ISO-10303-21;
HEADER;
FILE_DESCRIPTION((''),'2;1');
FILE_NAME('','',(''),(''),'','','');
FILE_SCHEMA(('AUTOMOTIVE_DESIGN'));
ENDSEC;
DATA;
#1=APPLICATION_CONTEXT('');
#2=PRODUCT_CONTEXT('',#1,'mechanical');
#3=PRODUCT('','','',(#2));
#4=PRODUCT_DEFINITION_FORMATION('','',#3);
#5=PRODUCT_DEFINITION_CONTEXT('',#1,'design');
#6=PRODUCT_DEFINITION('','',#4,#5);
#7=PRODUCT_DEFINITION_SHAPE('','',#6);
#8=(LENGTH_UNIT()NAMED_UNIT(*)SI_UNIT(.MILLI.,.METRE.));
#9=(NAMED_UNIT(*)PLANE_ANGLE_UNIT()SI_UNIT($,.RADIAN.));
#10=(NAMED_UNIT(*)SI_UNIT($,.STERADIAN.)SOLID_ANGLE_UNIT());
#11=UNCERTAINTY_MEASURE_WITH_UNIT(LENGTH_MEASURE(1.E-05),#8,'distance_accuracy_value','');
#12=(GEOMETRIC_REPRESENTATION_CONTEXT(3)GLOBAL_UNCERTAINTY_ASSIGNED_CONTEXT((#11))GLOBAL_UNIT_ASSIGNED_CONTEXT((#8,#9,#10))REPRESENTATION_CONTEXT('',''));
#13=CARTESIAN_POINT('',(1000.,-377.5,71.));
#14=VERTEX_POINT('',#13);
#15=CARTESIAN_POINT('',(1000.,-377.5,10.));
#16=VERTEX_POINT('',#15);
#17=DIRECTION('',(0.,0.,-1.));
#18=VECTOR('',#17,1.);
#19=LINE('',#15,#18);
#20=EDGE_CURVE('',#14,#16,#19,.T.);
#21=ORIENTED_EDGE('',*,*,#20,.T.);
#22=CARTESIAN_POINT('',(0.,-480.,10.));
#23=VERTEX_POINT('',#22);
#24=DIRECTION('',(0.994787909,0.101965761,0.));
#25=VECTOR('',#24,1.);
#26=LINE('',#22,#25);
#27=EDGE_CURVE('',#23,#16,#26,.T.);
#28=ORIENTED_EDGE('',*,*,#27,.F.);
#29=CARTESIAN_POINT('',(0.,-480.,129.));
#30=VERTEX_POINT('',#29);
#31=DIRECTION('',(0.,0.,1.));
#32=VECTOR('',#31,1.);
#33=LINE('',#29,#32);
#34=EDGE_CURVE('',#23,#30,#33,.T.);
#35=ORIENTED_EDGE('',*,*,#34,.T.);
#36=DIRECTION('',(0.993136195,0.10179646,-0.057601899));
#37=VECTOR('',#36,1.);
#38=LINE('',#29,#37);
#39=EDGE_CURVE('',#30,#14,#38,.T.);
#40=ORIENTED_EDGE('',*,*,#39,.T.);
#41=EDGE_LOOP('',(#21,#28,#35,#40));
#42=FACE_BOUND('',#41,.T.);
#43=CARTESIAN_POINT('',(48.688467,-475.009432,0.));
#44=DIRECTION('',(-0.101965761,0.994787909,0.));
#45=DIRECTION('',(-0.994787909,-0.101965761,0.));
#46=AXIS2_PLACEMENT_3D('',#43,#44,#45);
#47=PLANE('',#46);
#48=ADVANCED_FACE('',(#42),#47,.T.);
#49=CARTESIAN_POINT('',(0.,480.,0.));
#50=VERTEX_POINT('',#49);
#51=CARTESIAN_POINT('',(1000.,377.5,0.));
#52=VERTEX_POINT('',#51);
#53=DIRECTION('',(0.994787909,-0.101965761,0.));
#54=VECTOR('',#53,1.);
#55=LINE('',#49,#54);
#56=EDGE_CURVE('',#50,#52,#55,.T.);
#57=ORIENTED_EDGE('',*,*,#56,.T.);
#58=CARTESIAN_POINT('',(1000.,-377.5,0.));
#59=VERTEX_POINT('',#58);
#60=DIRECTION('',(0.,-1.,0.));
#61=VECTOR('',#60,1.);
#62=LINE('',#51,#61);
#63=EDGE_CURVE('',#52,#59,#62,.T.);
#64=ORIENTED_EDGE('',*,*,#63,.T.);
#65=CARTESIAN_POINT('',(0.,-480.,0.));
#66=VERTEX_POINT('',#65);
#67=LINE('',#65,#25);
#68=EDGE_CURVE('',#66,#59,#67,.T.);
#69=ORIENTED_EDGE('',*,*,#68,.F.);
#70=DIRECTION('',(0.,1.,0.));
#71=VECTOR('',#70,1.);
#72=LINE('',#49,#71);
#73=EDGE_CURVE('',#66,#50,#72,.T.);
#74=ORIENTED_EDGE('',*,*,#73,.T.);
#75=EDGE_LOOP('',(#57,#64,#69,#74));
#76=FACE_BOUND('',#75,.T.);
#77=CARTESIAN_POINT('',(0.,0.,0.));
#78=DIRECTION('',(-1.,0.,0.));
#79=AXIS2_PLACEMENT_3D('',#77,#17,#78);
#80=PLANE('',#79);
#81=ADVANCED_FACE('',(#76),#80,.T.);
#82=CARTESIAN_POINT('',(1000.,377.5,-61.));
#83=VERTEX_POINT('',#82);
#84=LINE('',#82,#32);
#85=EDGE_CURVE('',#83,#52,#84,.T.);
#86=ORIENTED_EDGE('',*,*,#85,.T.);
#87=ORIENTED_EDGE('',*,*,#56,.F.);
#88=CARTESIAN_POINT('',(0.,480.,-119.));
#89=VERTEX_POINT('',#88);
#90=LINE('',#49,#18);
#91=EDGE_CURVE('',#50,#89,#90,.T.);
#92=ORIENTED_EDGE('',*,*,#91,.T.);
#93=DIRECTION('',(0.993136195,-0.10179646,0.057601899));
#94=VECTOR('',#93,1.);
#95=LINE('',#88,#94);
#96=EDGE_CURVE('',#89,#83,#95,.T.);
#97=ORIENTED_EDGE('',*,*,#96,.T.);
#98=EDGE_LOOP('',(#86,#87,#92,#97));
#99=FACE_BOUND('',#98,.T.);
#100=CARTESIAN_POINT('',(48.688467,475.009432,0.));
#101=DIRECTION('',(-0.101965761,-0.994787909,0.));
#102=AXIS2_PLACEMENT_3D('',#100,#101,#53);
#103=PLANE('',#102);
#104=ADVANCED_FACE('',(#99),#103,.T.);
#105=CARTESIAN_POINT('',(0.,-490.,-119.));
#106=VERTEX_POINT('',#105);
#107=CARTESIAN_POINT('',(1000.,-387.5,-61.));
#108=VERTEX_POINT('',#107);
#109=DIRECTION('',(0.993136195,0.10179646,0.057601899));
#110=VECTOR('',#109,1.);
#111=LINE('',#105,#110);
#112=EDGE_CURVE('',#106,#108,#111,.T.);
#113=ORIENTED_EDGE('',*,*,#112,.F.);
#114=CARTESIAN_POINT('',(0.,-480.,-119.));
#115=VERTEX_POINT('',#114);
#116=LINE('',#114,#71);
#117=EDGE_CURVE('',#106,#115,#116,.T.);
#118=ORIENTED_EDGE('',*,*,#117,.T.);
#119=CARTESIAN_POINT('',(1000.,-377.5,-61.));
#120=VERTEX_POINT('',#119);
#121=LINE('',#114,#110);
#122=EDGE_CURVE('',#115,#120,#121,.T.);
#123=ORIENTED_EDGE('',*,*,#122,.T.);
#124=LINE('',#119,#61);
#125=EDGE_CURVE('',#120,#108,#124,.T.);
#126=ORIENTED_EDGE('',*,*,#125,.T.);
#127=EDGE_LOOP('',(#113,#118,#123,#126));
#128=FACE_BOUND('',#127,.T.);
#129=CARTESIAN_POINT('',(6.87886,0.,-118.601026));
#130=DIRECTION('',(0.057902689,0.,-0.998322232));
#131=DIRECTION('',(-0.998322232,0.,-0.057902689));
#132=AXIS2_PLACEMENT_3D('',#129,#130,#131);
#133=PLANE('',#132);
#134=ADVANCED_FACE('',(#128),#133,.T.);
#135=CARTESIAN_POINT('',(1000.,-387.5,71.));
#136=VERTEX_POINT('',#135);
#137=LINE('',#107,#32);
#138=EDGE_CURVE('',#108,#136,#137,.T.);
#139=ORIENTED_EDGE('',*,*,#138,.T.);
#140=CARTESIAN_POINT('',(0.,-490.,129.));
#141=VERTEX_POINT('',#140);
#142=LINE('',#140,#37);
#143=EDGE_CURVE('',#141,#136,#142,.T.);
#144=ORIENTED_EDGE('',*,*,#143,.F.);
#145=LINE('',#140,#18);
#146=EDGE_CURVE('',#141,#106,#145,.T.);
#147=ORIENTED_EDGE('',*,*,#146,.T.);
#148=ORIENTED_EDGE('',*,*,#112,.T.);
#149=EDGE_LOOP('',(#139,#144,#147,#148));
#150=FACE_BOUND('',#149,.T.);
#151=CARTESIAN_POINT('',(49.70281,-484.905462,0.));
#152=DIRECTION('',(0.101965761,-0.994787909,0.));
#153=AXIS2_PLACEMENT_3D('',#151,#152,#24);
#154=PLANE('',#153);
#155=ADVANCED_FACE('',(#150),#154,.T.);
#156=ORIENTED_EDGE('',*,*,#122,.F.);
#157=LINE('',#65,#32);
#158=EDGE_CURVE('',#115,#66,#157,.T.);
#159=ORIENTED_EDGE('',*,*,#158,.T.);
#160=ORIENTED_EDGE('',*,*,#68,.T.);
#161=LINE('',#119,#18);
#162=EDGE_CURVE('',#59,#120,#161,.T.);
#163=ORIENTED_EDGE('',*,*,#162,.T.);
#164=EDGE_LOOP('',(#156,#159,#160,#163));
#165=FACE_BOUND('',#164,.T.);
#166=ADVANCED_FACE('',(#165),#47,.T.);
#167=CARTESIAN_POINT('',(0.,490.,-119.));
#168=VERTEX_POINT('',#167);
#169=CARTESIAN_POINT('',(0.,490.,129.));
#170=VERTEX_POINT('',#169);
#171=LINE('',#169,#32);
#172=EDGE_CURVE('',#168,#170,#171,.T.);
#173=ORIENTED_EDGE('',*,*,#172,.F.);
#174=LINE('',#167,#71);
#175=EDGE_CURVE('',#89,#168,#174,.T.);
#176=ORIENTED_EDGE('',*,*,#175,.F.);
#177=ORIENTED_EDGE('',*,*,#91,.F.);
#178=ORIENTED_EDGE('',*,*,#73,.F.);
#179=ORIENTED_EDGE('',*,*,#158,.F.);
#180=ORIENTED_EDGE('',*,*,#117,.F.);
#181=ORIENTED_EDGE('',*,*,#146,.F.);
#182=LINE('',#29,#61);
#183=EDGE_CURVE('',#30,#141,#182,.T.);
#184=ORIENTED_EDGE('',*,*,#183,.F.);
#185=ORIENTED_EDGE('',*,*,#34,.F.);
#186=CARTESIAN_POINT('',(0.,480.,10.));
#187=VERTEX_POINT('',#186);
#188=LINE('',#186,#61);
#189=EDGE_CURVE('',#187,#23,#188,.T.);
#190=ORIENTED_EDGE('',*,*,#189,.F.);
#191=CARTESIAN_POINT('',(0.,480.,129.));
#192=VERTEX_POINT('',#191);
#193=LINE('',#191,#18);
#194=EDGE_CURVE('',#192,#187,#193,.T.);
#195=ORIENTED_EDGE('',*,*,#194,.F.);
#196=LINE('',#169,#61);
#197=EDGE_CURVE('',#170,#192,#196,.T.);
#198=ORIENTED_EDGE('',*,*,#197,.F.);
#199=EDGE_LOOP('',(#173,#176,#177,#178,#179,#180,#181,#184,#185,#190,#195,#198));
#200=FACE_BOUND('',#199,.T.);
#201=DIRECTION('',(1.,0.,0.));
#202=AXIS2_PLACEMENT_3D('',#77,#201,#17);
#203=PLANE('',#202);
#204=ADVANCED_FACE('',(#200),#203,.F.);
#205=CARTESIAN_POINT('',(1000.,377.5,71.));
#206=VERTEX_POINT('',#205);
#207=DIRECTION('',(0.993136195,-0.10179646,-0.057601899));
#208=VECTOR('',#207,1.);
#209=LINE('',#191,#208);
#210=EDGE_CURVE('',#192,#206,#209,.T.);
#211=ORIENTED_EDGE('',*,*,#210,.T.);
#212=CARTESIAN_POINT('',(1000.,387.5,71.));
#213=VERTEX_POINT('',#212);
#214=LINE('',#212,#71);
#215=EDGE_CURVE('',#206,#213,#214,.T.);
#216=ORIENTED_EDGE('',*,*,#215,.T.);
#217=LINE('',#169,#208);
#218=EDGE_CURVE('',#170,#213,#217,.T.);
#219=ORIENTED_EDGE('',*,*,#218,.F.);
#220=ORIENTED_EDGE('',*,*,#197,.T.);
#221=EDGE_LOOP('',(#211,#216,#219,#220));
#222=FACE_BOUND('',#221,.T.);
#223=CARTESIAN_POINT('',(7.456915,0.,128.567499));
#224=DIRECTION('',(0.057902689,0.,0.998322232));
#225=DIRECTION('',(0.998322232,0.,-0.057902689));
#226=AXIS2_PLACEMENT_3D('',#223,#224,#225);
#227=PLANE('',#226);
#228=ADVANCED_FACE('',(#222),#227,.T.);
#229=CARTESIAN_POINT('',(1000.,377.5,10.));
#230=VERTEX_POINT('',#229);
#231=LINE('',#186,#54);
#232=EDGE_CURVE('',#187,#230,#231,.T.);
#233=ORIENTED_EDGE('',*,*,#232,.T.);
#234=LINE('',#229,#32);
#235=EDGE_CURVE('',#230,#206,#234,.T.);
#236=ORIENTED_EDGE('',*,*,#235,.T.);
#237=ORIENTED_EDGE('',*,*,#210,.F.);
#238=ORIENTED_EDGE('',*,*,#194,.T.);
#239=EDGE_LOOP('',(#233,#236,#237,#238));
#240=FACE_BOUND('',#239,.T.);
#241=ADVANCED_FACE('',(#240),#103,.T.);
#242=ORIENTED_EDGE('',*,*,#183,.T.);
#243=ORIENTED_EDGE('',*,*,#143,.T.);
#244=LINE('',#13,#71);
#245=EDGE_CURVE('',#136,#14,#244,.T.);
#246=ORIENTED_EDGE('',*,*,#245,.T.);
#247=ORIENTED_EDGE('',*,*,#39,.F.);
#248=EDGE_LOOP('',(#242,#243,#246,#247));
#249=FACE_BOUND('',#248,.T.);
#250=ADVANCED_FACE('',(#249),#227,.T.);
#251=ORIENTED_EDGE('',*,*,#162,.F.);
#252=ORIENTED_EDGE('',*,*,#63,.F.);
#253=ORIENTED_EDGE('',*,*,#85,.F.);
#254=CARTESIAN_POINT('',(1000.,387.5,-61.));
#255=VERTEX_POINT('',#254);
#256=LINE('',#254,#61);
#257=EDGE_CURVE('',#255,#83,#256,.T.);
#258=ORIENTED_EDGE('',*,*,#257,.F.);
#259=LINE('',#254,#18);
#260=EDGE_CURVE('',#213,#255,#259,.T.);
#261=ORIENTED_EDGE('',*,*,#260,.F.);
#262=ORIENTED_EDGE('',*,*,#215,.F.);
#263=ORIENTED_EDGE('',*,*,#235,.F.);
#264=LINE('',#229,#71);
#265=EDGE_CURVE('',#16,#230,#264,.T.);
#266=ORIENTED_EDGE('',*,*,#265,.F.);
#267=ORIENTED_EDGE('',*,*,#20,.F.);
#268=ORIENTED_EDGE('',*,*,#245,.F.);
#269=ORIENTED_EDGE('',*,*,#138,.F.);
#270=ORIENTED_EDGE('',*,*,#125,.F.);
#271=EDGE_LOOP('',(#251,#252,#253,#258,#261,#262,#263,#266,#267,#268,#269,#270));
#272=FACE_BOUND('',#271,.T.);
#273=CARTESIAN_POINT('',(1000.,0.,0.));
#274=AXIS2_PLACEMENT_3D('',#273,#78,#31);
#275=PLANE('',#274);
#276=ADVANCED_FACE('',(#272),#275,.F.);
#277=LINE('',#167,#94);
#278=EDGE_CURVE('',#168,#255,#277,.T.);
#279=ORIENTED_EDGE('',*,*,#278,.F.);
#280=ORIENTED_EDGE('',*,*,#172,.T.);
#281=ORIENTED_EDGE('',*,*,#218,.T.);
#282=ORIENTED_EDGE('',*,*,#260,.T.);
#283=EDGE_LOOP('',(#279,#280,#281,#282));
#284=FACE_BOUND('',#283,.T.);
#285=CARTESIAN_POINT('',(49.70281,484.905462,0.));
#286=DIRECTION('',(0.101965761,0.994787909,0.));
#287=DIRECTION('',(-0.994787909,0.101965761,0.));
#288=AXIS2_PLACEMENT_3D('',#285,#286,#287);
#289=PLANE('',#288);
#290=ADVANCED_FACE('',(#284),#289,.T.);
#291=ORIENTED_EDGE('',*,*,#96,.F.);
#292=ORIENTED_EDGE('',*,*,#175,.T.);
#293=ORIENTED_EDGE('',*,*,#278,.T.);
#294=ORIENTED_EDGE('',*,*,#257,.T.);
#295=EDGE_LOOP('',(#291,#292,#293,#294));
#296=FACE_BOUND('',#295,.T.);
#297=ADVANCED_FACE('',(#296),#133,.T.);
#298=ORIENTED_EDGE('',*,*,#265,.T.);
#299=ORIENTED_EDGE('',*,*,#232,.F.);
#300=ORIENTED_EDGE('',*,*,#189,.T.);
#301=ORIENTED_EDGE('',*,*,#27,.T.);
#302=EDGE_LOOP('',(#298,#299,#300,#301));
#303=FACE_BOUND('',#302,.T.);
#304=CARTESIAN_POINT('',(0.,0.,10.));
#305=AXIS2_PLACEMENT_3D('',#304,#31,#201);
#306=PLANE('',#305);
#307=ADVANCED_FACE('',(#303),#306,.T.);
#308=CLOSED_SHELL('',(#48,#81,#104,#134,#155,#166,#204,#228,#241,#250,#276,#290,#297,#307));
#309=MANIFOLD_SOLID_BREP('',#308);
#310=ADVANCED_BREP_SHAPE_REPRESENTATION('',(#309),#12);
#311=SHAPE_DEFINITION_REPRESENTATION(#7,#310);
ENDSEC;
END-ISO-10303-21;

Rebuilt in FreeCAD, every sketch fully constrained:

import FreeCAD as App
import Part
import Sketcher
Q = App.Units.Quantity

doc = App.newDocument("Part")
params = doc.addObject("Spreadsheet::Sheet", "Params")
for row, (alias, value) in enumerate([
    ("sketch1_width", "10 mm"),
    ("sketch1_width2", "960 mm"),
    ("sketch1_height", "248 mm"),
    ("sketch1_height2", "119 mm"),
    ("sketch2_width", "10 mm"),
    ("sketch2_width2", "755 mm"),
    ("sketch2_height", "132 mm"),
    ("sketch2_height2", "61 mm"),
], start=1):
    params.set(f"A{row}", alias)
    params.set(f"B{row}", "=" + value)
    params.setAlias(f"B{row}", alias)

body = doc.addObject("PartDesign::Body", "Body")

sketch1 = body.newObject("Sketcher::SketchObject", "Sketch")
sketch1.AttachmentSupport = (doc.getObject("YZ_Plane"), [""])
sketch1.MapMode = "FlatFace"
sketch1.addGeometry(Part.LineSegment(App.Vector(490, -119, 0), App.Vector(490, 129, 0)), False)
sketch1.addGeometry(Part.LineSegment(App.Vector(490, 129, 0), App.Vector(480, 129, 0)), False)
sketch1.addGeometry(Part.LineSegment(App.Vector(480, 129, 0), App.Vector(480, 10, 0)), False)
sketch1.addGeometry(Part.LineSegment(App.Vector(480, 10, 0), App.Vector(-480, 10, 0)), False)
sketch1.addGeometry(Part.LineSegment(App.Vector(-480, 10, 0), App.Vector(-480, 129, 0)), False)
sketch1.addGeometry(Part.LineSegment(App.Vector(-480, 129, 0), App.Vector(-490, 129, 0)), False)
sketch1.addGeometry(Part.LineSegment(App.Vector(-490, 129, 0), App.Vector(-490, -119, 0)), False)
sketch1.addGeometry(Part.LineSegment(App.Vector(-490, -119, 0), App.Vector(-480, -119, 0)), False)
sketch1.addGeometry(Part.LineSegment(App.Vector(-480, -119, 0), App.Vector(-480, 0, 0)), False)
sketch1.addGeometry(Part.LineSegment(App.Vector(-480, 0, 0), App.Vector(480, 0, 0)), False)
sketch1.addGeometry(Part.LineSegment(App.Vector(480, 0, 0), App.Vector(480, -119, 0)), False)
sketch1.addGeometry(Part.LineSegment(App.Vector(480, -119, 0), App.Vector(490, -119, 0)), False)
sketch1.addConstraint(Sketcher.Constraint("Coincident", 0, 2, 1, 1))
sketch1.addConstraint(Sketcher.Constraint("Coincident", 1, 2, 2, 1))
sketch1.addConstraint(Sketcher.Constraint("Coincident", 2, 2, 3, 1))
sketch1.addConstraint(Sketcher.Constraint("Coincident", 3, 2, 4, 1))
sketch1.addConstraint(Sketcher.Constraint("Coincident", 4, 2, 5, 1))
sketch1.addConstraint(Sketcher.Constraint("Coincident", 5, 2, 6, 1))
sketch1.addConstraint(Sketcher.Constraint("Coincident", 6, 2, 7, 1))
sketch1.addConstraint(Sketcher.Constraint("Coincident", 7, 2, 8, 1))
sketch1.addConstraint(Sketcher.Constraint("Coincident", 8, 2, 9, 1))
sketch1.addConstraint(Sketcher.Constraint("Coincident", 9, 2, 10, 1))
sketch1.addConstraint(Sketcher.Constraint("Coincident", 10, 2, 11, 1))
sketch1.addConstraint(Sketcher.Constraint("Coincident", 11, 2, 0, 1))
sketch1.addConstraint(Sketcher.Constraint("Vertical", 0))
sketch1.addConstraint(Sketcher.Constraint("Horizontal", 1))
sketch1.addConstraint(Sketcher.Constraint("Vertical", 2))
sketch1.addConstraint(Sketcher.Constraint("Horizontal", 3))
sketch1.addConstraint(Sketcher.Constraint("Vertical", 4))
sketch1.addConstraint(Sketcher.Constraint("Horizontal", 5))
sketch1.addConstraint(Sketcher.Constraint("Vertical", 6))
sketch1.addConstraint(Sketcher.Constraint("Horizontal", 7))
sketch1.addConstraint(Sketcher.Constraint("Vertical", 8))
sketch1.addConstraint(Sketcher.Constraint("Horizontal", 9))
sketch1.addConstraint(Sketcher.Constraint("Vertical", 10))
sketch1.addConstraint(Sketcher.Constraint("Horizontal", 11))
sketch1.addConstraint(Sketcher.Constraint("Symmetric", 8, 2, 9, 2, -1, 1))
sketch1.addConstraint(Sketcher.Constraint("Symmetric", 1, 2, 4, 2, -2))
sketch1.addConstraint(Sketcher.Constraint("Symmetric", 6, 2, 11, 2, -2))
sketch1.addConstraint(Sketcher.Constraint("Vertical", 4, 2, 7, 2))
sketch1.addConstraint(Sketcher.Constraint("Equal", 4, 8))
sketch1.addConstraint(Sketcher.Constraint("DistanceX", 1, 2, 1, 1, Q("10 mm")))
sketch1.addConstraint(Sketcher.Constraint("DistanceX", 3, 2, 3, 1, Q("960 mm")))
sketch1.addConstraint(Sketcher.Constraint("DistanceY", 0, 1, 0, 2, Q("248 mm")))
sketch1.addConstraint(Sketcher.Constraint("DistanceY", 2, 2, 2, 1, Q("119 mm")))
sketch1.setExpression("Constraints[29]", "Params.sketch1_width")
sketch1.setExpression("Constraints[30]", "Params.sketch1_width2")
sketch1.setExpression("Constraints[31]", "Params.sketch1_height")
sketch1.setExpression("Constraints[32]", "Params.sketch1_height2")

sketch2 = body.newObject("Sketcher::SketchObject", "Sketch001")
sketch2.AttachmentSupport = (doc.getObject("YZ_Plane"), [""])
sketch2.MapMode = "FlatFace"
sketch2.AttachmentOffset = App.Placement(App.Vector(0, 0, 1000), App.Rotation())
sketch2.addGeometry(Part.LineSegment(App.Vector(387.5, 71, 0), App.Vector(387.5, -61, 0)), False)
sketch2.addGeometry(Part.LineSegment(App.Vector(387.5, -61, 0), App.Vector(377.5, -61, 0)), False)
sketch2.addGeometry(Part.LineSegment(App.Vector(377.5, -61, 0), App.Vector(377.5, 0, 0)), False)
sketch2.addGeometry(Part.LineSegment(App.Vector(377.5, 0, 0), App.Vector(-377.5, 0, 0)), False)
sketch2.addGeometry(Part.LineSegment(App.Vector(-377.5, 0, 0), App.Vector(-377.5, -61, 0)), False)
sketch2.addGeometry(Part.LineSegment(App.Vector(-377.5, -61, 0), App.Vector(-387.5, -61, 0)), False)
sketch2.addGeometry(Part.LineSegment(App.Vector(-387.5, -61, 0), App.Vector(-387.5, 71, 0)), False)
sketch2.addGeometry(Part.LineSegment(App.Vector(-387.5, 71, 0), App.Vector(-377.5, 71, 0)), False)
sketch2.addGeometry(Part.LineSegment(App.Vector(-377.5, 71, 0), App.Vector(-377.5, 10, 0)), False)
sketch2.addGeometry(Part.LineSegment(App.Vector(-377.5, 10, 0), App.Vector(377.5, 10, 0)), False)
sketch2.addGeometry(Part.LineSegment(App.Vector(377.5, 10, 0), App.Vector(377.5, 71, 0)), False)
sketch2.addGeometry(Part.LineSegment(App.Vector(377.5, 71, 0), App.Vector(387.5, 71, 0)), False)
sketch2.addConstraint(Sketcher.Constraint("Coincident", 0, 2, 1, 1))
sketch2.addConstraint(Sketcher.Constraint("Coincident", 1, 2, 2, 1))
sketch2.addConstraint(Sketcher.Constraint("Coincident", 2, 2, 3, 1))
sketch2.addConstraint(Sketcher.Constraint("Coincident", 3, 2, 4, 1))
sketch2.addConstraint(Sketcher.Constraint("Coincident", 4, 2, 5, 1))
sketch2.addConstraint(Sketcher.Constraint("Coincident", 5, 2, 6, 1))
sketch2.addConstraint(Sketcher.Constraint("Coincident", 6, 2, 7, 1))
sketch2.addConstraint(Sketcher.Constraint("Coincident", 7, 2, 8, 1))
sketch2.addConstraint(Sketcher.Constraint("Coincident", 8, 2, 9, 1))
sketch2.addConstraint(Sketcher.Constraint("Coincident", 9, 2, 10, 1))
sketch2.addConstraint(Sketcher.Constraint("Coincident", 10, 2, 11, 1))
sketch2.addConstraint(Sketcher.Constraint("Coincident", 11, 2, 0, 1))
sketch2.addConstraint(Sketcher.Constraint("Vertical", 0))
sketch2.addConstraint(Sketcher.Constraint("Horizontal", 1))
sketch2.addConstraint(Sketcher.Constraint("Vertical", 2))
sketch2.addConstraint(Sketcher.Constraint("Horizontal", 3))
sketch2.addConstraint(Sketcher.Constraint("Vertical", 4))
sketch2.addConstraint(Sketcher.Constraint("Horizontal", 5))
sketch2.addConstraint(Sketcher.Constraint("Vertical", 6))
sketch2.addConstraint(Sketcher.Constraint("Horizontal", 7))
sketch2.addConstraint(Sketcher.Constraint("Vertical", 8))
sketch2.addConstraint(Sketcher.Constraint("Horizontal", 9))
sketch2.addConstraint(Sketcher.Constraint("Vertical", 10))
sketch2.addConstraint(Sketcher.Constraint("Horizontal", 11))
sketch2.addConstraint(Sketcher.Constraint("Symmetric", 2, 2, 3, 2, -1, 1))
sketch2.addConstraint(Sketcher.Constraint("Symmetric", 0, 2, 5, 2, -2))
sketch2.addConstraint(Sketcher.Constraint("Symmetric", 7, 2, 10, 2, -2))
sketch2.addConstraint(Sketcher.Constraint("Vertical", 4, 2, 7, 2))
sketch2.addConstraint(Sketcher.Constraint("Equal", 4, 8))
sketch2.addConstraint(Sketcher.Constraint("DistanceX", 1, 2, 1, 1, Q("10 mm")))
sketch2.addConstraint(Sketcher.Constraint("DistanceX", 3, 2, 3, 1, Q("755 mm")))
sketch2.addConstraint(Sketcher.Constraint("DistanceY", 0, 2, 0, 1, Q("132 mm")))
sketch2.addConstraint(Sketcher.Constraint("DistanceY", 2, 1, 2, 2, Q("61 mm")))
sketch2.setExpression("Constraints[29]", "Params.sketch2_width")
sketch2.setExpression("Constraints[30]", "Params.sketch2_width2")
sketch2.setExpression("Constraints[31]", "Params.sketch2_height")
sketch2.setExpression("Constraints[32]", "Params.sketch2_height2")

additiveloft = body.newObject("PartDesign::AdditiveLoft", "AdditiveLoft")
additiveloft.Profile = sketch1
additiveloft.Sections = [sketch2]

doc.recompute()
